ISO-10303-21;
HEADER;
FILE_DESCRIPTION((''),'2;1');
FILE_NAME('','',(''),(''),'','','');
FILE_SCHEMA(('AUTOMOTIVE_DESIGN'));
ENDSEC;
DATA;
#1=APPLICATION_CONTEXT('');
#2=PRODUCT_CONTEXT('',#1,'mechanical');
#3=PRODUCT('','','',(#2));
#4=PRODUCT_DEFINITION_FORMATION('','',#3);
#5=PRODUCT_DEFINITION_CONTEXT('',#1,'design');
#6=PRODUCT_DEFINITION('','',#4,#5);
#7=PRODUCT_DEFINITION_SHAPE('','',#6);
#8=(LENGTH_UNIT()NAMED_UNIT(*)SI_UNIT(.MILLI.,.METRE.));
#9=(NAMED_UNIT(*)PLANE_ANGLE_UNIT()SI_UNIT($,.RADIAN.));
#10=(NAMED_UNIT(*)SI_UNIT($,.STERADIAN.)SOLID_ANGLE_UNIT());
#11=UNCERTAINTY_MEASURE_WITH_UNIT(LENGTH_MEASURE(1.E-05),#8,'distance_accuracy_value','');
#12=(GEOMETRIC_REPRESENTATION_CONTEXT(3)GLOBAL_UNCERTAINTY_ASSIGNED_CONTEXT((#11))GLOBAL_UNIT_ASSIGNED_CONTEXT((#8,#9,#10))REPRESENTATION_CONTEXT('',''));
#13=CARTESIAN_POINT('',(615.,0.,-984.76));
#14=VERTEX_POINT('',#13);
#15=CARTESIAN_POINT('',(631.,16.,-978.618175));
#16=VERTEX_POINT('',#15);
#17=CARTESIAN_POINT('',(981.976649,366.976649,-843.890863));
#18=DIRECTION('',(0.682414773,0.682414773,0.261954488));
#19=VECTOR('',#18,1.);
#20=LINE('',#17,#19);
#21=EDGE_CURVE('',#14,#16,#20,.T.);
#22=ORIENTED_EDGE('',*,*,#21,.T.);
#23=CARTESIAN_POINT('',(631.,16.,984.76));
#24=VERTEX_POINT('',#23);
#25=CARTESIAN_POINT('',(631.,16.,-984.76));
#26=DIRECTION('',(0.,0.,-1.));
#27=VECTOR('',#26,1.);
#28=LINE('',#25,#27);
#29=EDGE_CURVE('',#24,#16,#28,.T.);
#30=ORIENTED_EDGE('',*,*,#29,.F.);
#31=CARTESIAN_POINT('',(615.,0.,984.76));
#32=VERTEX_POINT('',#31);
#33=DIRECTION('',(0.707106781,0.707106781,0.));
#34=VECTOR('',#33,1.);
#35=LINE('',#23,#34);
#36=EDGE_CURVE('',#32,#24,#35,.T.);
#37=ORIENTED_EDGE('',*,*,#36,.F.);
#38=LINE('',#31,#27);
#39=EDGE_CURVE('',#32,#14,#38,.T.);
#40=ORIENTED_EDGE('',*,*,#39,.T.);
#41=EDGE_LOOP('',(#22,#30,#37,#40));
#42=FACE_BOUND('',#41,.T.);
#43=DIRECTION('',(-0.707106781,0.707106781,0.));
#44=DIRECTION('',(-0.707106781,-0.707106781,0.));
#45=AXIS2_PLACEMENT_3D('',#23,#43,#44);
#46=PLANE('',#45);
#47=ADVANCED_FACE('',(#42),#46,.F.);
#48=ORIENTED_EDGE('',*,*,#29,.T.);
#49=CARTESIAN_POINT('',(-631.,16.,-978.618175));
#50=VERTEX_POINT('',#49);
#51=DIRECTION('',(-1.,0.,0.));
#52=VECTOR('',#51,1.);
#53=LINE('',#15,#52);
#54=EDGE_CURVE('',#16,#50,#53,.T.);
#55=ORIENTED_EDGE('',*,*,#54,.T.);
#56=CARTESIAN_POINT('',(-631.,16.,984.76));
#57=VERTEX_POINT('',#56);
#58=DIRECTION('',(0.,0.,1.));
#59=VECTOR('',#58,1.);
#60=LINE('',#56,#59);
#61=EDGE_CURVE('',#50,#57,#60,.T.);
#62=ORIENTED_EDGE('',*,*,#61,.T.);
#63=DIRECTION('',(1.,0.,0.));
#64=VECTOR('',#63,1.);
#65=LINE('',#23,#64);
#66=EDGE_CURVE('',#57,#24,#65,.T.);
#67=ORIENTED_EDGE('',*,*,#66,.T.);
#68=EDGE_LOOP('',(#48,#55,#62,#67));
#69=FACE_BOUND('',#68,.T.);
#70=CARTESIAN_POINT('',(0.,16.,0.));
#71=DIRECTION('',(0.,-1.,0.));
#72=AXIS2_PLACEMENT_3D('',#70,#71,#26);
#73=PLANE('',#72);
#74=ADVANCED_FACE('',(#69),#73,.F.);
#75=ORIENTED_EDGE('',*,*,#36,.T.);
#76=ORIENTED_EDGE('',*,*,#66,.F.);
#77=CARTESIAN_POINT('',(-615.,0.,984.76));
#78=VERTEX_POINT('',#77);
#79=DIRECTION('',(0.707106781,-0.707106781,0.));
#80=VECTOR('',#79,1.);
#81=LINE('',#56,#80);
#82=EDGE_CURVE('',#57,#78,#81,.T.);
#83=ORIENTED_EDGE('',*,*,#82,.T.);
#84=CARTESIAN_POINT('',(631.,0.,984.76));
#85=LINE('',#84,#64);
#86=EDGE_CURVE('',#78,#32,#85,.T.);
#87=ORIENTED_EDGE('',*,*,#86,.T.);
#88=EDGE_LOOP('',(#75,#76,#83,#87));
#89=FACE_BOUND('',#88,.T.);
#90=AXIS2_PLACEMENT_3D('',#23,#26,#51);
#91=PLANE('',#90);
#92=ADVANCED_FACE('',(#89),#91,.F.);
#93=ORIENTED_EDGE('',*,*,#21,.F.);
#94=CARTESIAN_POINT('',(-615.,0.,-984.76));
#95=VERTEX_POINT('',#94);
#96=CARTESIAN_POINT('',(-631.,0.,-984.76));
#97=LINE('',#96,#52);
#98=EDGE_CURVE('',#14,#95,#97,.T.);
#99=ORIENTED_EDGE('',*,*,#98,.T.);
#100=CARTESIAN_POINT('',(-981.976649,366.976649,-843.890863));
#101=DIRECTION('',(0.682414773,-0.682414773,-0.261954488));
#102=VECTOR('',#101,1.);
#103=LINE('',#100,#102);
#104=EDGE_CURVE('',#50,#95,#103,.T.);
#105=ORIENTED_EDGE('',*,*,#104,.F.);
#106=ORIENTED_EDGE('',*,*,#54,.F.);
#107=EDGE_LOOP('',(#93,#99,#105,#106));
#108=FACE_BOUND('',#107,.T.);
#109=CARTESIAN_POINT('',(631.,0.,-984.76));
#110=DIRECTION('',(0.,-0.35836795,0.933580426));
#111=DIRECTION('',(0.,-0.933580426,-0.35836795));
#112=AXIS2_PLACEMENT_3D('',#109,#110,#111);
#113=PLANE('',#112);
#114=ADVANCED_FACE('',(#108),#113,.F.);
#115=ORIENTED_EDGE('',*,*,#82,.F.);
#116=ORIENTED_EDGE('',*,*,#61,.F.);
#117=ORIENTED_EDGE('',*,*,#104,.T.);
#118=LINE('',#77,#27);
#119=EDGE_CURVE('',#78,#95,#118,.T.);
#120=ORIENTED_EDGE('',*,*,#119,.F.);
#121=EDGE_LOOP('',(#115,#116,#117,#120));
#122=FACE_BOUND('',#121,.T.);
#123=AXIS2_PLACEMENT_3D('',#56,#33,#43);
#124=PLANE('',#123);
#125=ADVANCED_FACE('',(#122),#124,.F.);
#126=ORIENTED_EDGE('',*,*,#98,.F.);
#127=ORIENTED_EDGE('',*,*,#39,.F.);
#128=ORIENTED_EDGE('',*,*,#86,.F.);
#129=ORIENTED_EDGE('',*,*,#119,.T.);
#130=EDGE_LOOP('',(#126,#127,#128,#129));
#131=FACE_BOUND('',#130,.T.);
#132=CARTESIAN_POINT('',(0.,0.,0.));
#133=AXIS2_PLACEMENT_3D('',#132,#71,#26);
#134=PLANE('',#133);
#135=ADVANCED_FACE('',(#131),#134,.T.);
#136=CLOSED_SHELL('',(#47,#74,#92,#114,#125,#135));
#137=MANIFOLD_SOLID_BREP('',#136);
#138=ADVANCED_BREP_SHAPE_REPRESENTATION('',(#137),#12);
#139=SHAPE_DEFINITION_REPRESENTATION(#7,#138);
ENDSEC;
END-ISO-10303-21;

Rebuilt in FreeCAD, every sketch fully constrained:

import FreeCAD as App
import Part
import Sketcher

V = App.Vector
Q = App.Units.Quantity


def add_polygon(sketch, points):
    """Adds a closed chain of lines whose ends are joined by coincident constraints."""
    first, n = sketch.GeometryCount, len(points)
    for a, b in zip(points, points[1:] + points[:1]):
        sketch.addGeometry(Part.LineSegment(App.Vector(*a, 0), App.Vector(*b, 0)), False)
    for i in range(n):
        sketch.addConstraint(Sketcher.Constraint("Coincident", first + i, 2, first + (i + 1) % n, 1))

doc = App.newDocument("Part")
body = doc.addObject("PartDesign::Body", "Body")

# Sketch on XZ plane
sketch1 = doc.addObject("Sketcher::SketchObject", "Sketch")
body.addObject(sketch1)
sketch1.AttachmentSupport = (doc.XZ_Plane, [""])
sketch1.MapMode = "FlatFace"
add_polygon(sketch1, [(-631, -984.76), (-631, 984.76), (631, 984.76), (631, -984.76)])  # lines 0-3
sketch1.addConstraint([
    Sketcher.Constraint("Vertical", 0),
    Sketcher.Constraint("Horizontal", 1),
    Sketcher.Constraint("Vertical", 2),
    Sketcher.Constraint("Horizontal", 3),
    Sketcher.Constraint("Symmetric", 0, 2, 2, 2, -1, 1),
    Sketcher.Constraint("DistanceX", 1, 1, 1, 2, 1262.0),
    Sketcher.Constraint("DistanceY", 0, 1, 0, 2, 1969.52),
])
pad1 = doc.addObject("PartDesign::Pad", "Pad")
body.addObject(pad1)
pad1.Profile = sketch1
pad1.Length = 16
pad1.Reversed = True

# Sketch on XY plane
sketch2 = doc.addObject("Sketcher::SketchObject", "Sketch001")
body.addObject(sketch2)
sketch2.AttachmentSupport = (doc.XY_Plane, [""])
sketch2.MapMode = "FlatFace"
sketch2.AttachmentOffset = App.Placement(V(0, 0, -984.76), App.Rotation())
add_polygon(sketch2, [(615, 0), (631, 16), (631, 0)])  # lines 0-2
add_polygon(sketch2, [(-631, 16), (-615, 0), (-631, 0)])  # lines 3-5
sketch2.addConstraint([
    Sketcher.Constraint("Vertical", 1),
    Sketcher.Constraint("Horizontal", 2),
    Sketcher.Constraint("Horizontal", 4),
    Sketcher.Constraint("Vertical", 5),
    Sketcher.Constraint("Symmetric", 2, 2, 3, 2, -1, 1),
    Sketcher.Constraint("Symmetric", 1, 2, 4, 2, -2),
    Sketcher.Constraint("Perpendicular", 0, 3),
    Sketcher.Constraint("Horizontal", 0, 2, 5, 2),
    Sketcher.Constraint("DistanceX", 2, 2, 2, 1, 16.0),
    Sketcher.Constraint("DistanceX", -1, 1, 0, 2, 631.0),
])
pocket1 = doc.addObject("PartDesign::Pocket", "Pocket")
body.addObject(pocket1)
pocket1.Profile = sketch2
pocket1.Type = "ThroughAll"
pocket1.Reversed = True

# Sketch on YZ plane
sketch3 = doc.addObject("Sketcher::SketchObject", "Sketch002")
body.addObject(sketch3)
sketch3.AttachmentSupport = (doc.YZ_Plane, [""])
sketch3.MapMode = "FlatFace"
sketch3.AttachmentOffset = App.Placement(V(0, 0, -631), App.Rotation())
add_polygon(sketch3, [(0, -984.76), (16, -978.618175), (16, -984.76)])  # lines 0-2
sketch3.addConstraint([
    Sketcher.Constraint("Vertical", 1),
    Sketcher.Constraint("Horizontal", 2),
    Sketcher.Constraint("PointOnObject", 2, 2, -2),
    Sketcher.Constraint("DistanceX", 2, 2, 2, 1, 16.0),
    Sketcher.Constraint("Angle", 0, Q("21 deg")),
    Sketcher.Constraint("DistanceY", 1, 2, -1, 1, 984.76),
])
pocket2 = doc.addObject("PartDesign::Pocket", "Pocket001")
body.addObject(pocket2)
pocket2.Profile = sketch3
pocket2.Type = "ThroughAll"
pocket2.Reversed = True

doc.recompute()
